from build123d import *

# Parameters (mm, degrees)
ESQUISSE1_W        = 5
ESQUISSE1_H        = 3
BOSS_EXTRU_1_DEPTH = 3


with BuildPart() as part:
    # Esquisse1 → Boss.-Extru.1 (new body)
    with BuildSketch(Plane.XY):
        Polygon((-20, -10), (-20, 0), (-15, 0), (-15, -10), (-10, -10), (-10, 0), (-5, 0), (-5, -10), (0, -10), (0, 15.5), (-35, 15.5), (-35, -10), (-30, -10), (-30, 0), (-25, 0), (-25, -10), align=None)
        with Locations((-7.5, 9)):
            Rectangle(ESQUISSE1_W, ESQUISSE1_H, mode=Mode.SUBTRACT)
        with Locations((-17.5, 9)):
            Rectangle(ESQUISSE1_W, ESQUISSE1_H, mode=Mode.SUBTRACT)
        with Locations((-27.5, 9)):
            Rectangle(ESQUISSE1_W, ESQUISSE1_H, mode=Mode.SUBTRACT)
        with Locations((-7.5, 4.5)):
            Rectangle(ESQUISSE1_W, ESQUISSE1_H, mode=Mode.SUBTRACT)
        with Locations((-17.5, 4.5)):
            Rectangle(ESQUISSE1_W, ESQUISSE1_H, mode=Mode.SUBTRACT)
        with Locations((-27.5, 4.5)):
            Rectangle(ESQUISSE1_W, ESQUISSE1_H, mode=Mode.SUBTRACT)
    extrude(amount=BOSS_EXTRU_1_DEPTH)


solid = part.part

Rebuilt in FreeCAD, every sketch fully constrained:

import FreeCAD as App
import Part
import Sketcher
from FreeCAD import Vector
Q = App.Units.Quantity

doc = App.newDocument("Part")
body = doc.addObject("PartDesign::Body", "Body")

# Sketch on XY plane
sketch1 = doc.addObject("Sketcher::SketchObject", "Sketch")
body.addObject(sketch1)
sketch1.AttachmentSupport = (doc.XY_Plane, [""])
sketch1.MapMode = "FlatFace"
sketch1.addGeometry(Part.LineSegment(Vector(-20, -10, 0), Vector(-20, 0, 0)), False)
sketch1.addGeometry(Part.LineSegment(Vector(-20, 0, 0), Vector(-15, 0, 0)), False)
sketch1.addGeometry(Part.LineSegment(Vector(-15, 0, 0), Vector(-15, -10, 0)), False)
sketch1.addGeometry(Part.LineSegment(Vector(-15, -10, 0), Vector(-10, -10, 0)), False)
sketch1.addGeometry(Part.LineSegment(Vector(-10, -10, 0), Vector(-10, 0, 0)), False)
sketch1.addGeometry(Part.LineSegment(Vector(-10, 0, 0), Vector(-5, 0, 0)), False)
sketch1.addGeometry(Part.LineSegment(Vector(-5, 0, 0), Vector(-5, -10, 0)), False)
sketch1.addGeometry(Part.LineSegment(Vector(-5, -10, 0), Vector(0, -10, 0)), False)
sketch1.addGeometry(Part.LineSegment(Vector(0, -10, 0), Vector(0, 15.5, 0)), False)
sketch1.addGeometry(Part.LineSegment(Vector(0, 15.5, 0), Vector(-35, 15.5, 0)), False)
sketch1.addGeometry(Part.LineSegment(Vector(-35, 15.5, 0), Vector(-35, -10, 0)), False)
sketch1.addGeometry(Part.LineSegment(Vector(-35, -10, 0), Vector(-30, -10, 0)), False)
sketch1.addGeometry(Part.LineSegment(Vector(-30, -10, 0), Vector(-30, 0, 0)), False)
sketch1.addGeometry(Part.LineSegment(Vector(-30, 0, 0), Vector(-25, 0, 0)), False)
sketch1.addGeometry(Part.LineSegment(Vector(-25, 0, 0), Vector(-25, -10, 0)), False)
sketch1.addGeometry(Part.LineSegment(Vector(-25, -10, 0), Vector(-20, -10, 0)), False)
sketch1.addGeometry(Part.LineSegment(Vector(-25, 3, 0), Vector(-30, 3, 0)), False)
sketch1.addGeometry(Part.LineSegment(Vector(-30, 3, 0), Vector(-30, 6, 0)), False)
sketch1.addGeometry(Part.LineSegment(Vector(-30, 6, 0), Vector(-25, 6, 0)), False)
sketch1.addGeometry(Part.LineSegment(Vector(-25, 6, 0), Vector(-25, 3, 0)), False)
sketch1.addGeometry(Part.LineSegment(Vector(-15, 3, 0), Vector(-20, 3, 0)), False)
sketch1.addGeometry(Part.LineSegment(Vector(-20, 3, 0), Vector(-20, 6, 0)), False)
sketch1.addGeometry(Part.LineSegment(Vector(-20, 6, 0), Vector(-15, 6, 0)), False)
sketch1.addGeometry(Part.LineSegment(Vector(-15, 6, 0), Vector(-15, 3, 0)), False)
sketch1.addGeometry(Part.LineSegment(Vector(-5, 3, 0), Vector(-10, 3, 0)), False)
sketch1.addGeometry(Part.LineSegment(Vector(-10, 3, 0), Vector(-10, 6, 0)), False)
sketch1.addGeometry(Part.LineSegment(Vector(-10, 6, 0), Vector(-5, 6, 0)), False)
sketch1.addGeometry(Part.LineSegment(Vector(-5, 6, 0), Vector(-5, 3, 0)), False)
sketch1.addGeometry(Part.LineSegment(Vector(-25, 7.5, 0), Vector(-30, 7.5, 0)), False)
sketch1.addGeometry(Part.LineSegment(Vector(-30, 7.5, 0), Vector(-30, 10.5, 0)), False)
sketch1.addGeometry(Part.LineSegment(Vector(-30, 10.5, 0), Vector(-25, 10.5, 0)), False)
sketch1.addGeometry(Part.LineSegment(Vector(-25, 10.5, 0), Vector(-25, 7.5, 0)), False)
sketch1.addGeometry(Part.LineSegment(Vector(-15, 7.5, 0), Vector(-20, 7.5, 0)), False)
sketch1.addGeometry(Part.LineSegment(Vector(-20, 7.5, 0), Vector(-20, 10.5, 0)), False)
sketch1.addGeometry(Part.LineSegment(Vector(-20, 10.5, 0), Vector(-15, 10.5, 0)), False)
sketch1.addGeometry(Part.LineSegment(Vector(-15, 10.5, 0), Vector(-15, 7.5, 0)), False)
sketch1.addGeometry(Part.LineSegment(Vector(-5, 7.5, 0), Vector(-10, 7.5, 0)), False)
sketch1.addGeometry(Part.LineSegment(Vector(-10, 7.5, 0), Vector(-10, 10.5, 0)), False)
sketch1.addGeometry(Part.LineSegment(Vector(-10, 10.5, 0), Vector(-5, 10.5, 0)), False)
sketch1.addGeometry(Part.LineSegment(Vector(-5, 10.5, 0), Vector(-5, 7.5, 0)), False)
sketch1.addConstraint(Sketcher.Constraint("Coincident", 0, 2, 1, 1))
sketch1.addConstraint(Sketcher.Constraint("Coincident", 1, 2, 2, 1))
sketch1.addConstraint(Sketcher.Constraint("Coincident", 2, 2, 3, 1))
sketch1.addConstraint(Sketcher.Constraint("Coincident", 3, 2, 4, 1))
sketch1.addConstraint(Sketcher.Constraint("Coincident", 4, 2, 5, 1))
sketch1.addConstraint(Sketcher.Constraint("Coincident", 5, 2, 6, 1))
sketch1.addConstraint(Sketcher.Constraint("Coincident", 6, 2, 7, 1))
sketch1.addConstraint(Sketcher.Constraint("Coincident", 7, 2, 8, 1))
sketch1.addConstraint(Sketcher.Constraint("Coincident", 8, 2, 9, 1))
sketch1.addConstraint(Sketcher.Constraint("Coincident", 9, 2, 10, 1))
sketch1.addConstraint(Sketcher.Constraint("Coincident", 10, 2, 11, 1))
sketch1.addConstraint(Sketcher.Constraint("Coincident", 11, 2, 12, 1))
sketch1.addConstraint(Sketcher.Constraint("Coincident", 12, 2, 13, 1))
sketch1.addConstraint(Sketcher.Constraint("Coincident", 13, 2, 14, 1))
sketch1.addConstraint(Sketcher.Constraint("Coincident", 14, 2, 15, 1))
sketch1.addConstraint(Sketcher.Constraint("Coincident", 15, 2, 0, 1))
sketch1.addConstraint(Sketcher.Constraint("Coincident", 16, 2, 17, 1))
sketch1.addConstraint(Sketcher.Constraint("Coincident", 17, 2, 18, 1))
sketch1.addConstraint(Sketcher.Constraint("Coincident", 18, 2, 19, 1))
sketch1.addConstraint(Sketcher.Constraint("Coincident", 19, 2, 16, 1))
sketch1.addConstraint(Sketcher.Constraint("Coincident", 20, 2, 21, 1))
sketch1.addConstraint(Sketcher.Constraint("Coincident", 21, 2, 22, 1))
sketch1.addConstraint(Sketcher.Constraint("Coincident", 22, 2, 23, 1))
sketch1.addConstraint(Sketcher.Constraint("Coincident", 23, 2, 20, 1))
sketch1.addConstraint(Sketcher.Constraint("Coincident", 24, 2, 25, 1))
sketch1.addConstraint(Sketcher.Constraint("Coincident", 25, 2, 26, 1))
sketch1.addConstraint(Sketcher.Constraint("Coincident", 26, 2, 27, 1))
sketch1.addConstraint(Sketcher.Constraint("Coincident", 27, 2, 24, 1))
sketch1.addConstraint(Sketcher.Constraint("Coincident", 28, 2, 29, 1))
sketch1.addConstraint(Sketcher.Constraint("Coincident", 29, 2, 30, 1))
sketch1.addConstraint(Sketcher.Constraint("Coincident", 30, 2, 31, 1))
sketch1.addConstraint(Sketcher.Constraint("Coincident", 31, 2, 28, 1))
sketch1.addConstraint(Sketcher.Constraint("Coincident", 32, 2, 33, 1))
sketch1.addConstraint(Sketcher.Constraint("Coincident", 33, 2, 34, 1))
sketch1.addConstraint(Sketcher.Constraint("Coincident", 34, 2, 35, 1))
sketch1.addConstraint(Sketcher.Constraint("Coincident", 35, 2, 32, 1))
sketch1.addConstraint(Sketcher.Constraint("Coincident", 36, 2, 37, 1))
sketch1.addConstraint(Sketcher.Constraint("Coincident", 37, 2, 38, 1))
sketch1.addConstraint(Sketcher.Constraint("Coincident", 38, 2, 39, 1))
sketch1.addConstraint(Sketcher.Constraint("Coincident", 39, 2, 36, 1))
sketch1.addConstraint(Sketcher.Constraint("Vertical", 0))
sketch1.addConstraint(Sketcher.Constraint("Horizontal", 1))
sketch1.addConstraint(Sketcher.Constraint("Vertical", 2))
sketch1.addConstraint(Sketcher.Constraint("Horizontal", 3))
sketch1.addConstraint(Sketcher.Constraint("Vertical", 4))
sketch1.addConstraint(Sketcher.Constraint("Horizontal", 5))
sketch1.addConstraint(Sketcher.Constraint("Vertical", 6))
sketch1.addConstraint(Sketcher.Constraint("Horizontal", 7))
sketch1.addConstraint(Sketcher.Constraint("Vertical", 8))
sketch1.addConstraint(Sketcher.Constraint("Horizontal", 9))
sketch1.addConstraint(Sketcher.Constraint("Vertical", 10))
sketch1.addConstraint(Sketcher.Constraint("Horizontal", 11))
sketch1.addConstraint(Sketcher.Constraint("Vertical", 12))
sketch1.addConstraint(Sketcher.Constraint("Horizontal", 13))
sketch1.addConstraint(Sketcher.Constraint("Vertical", 14))
sketch1.addConstraint(Sketcher.Constraint("Horizontal", 15))
sketch1.addConstraint(Sketcher.Constraint("Horizontal", 16))
sketch1.addConstraint(Sketcher.Constraint("Vertical", 17))
sketch1.addConstraint(Sketcher.Constraint("Horizontal", 18))
sketch1.addConstraint(Sketcher.Constraint("Vertical", 19))
sketch1.addConstraint(Sketcher.Constraint("Horizontal", 20))
sketch1.addConstraint(Sketcher.Constraint("Vertical", 21))
sketch1.addConstraint(Sketcher.Constraint("Horizontal", 22))
sketch1.addConstraint(Sketcher.Constraint("Vertical", 23))
sketch1.addConstraint(Sketcher.Constraint("Horizontal", 24))
sketch1.addConstraint(Sketcher.Constraint("Vertical", 25))
sketch1.addConstraint(Sketcher.Constraint("Horizontal", 26))
sketch1.addConstraint(Sketcher.Constraint("Vertical", 27))
sketch1.addConstraint(Sketcher.Constraint("Horizontal", 28))
sketch1.addConstraint(Sketcher.Constraint("Vertical", 29))
sketch1.addConstraint(Sketcher.Constraint("Horizontal", 30))
sketch1.addConstraint(Sketcher.Constraint("Vertical", 31))
sketch1.addConstraint(Sketcher.Constraint("Horizontal", 32))
sketch1.addConstraint(Sketcher.Constraint("Vertical", 33))
sketch1.addConstraint(Sketcher.Constraint("Horizontal", 34))
sketch1.addConstraint(Sketcher.Constraint("Vertical", 35))
sketch1.addConstraint(Sketcher.Constraint("Horizontal", 36))
sketch1.addConstraint(Sketcher.Constraint("Vertical", 37))
sketch1.addConstraint(Sketcher.Constraint("Horizontal", 38))
sketch1.addConstraint(Sketcher.Constraint("Vertical", 39))
sketch1.addConstraint(Sketcher.Constraint("PointOnObject", 0, 2, -1))
sketch1.addConstraint(Sketcher.Constraint("PointOnObject", 4, 2, -1))
sketch1.addConstraint(Sketcher.Constraint("PointOnObject", 7, 2, -2))
sketch1.addConstraint(Sketcher.Constraint("PointOnObject", 12, 2, -1))
sketch1.addConstraint(Sketcher.Constraint("Horizontal", 3, 2, 6, 2))
sketch1.addConstraint(Sketcher.Constraint("Horizontal", 7, 2, 10, 2))
sketch1.addConstraint(Sketcher.Constraint("Horizontal", 11, 2, 14, 2))
sketch1.addConstraint(Sketcher.Constraint("Horizontal", 19, 2, 20, 2))
sketch1.addConstraint(Sketcher.Constraint("Horizontal", 18, 2, 21, 2))
sketch1.addConstraint(Sketcher.Constraint("Horizontal", 23, 2, 24, 2))
sketch1.addConstraint(Sketcher.Constraint("Horizontal", 22, 2, 25, 2))
sketch1.addConstraint(Sketcher.Constraint("Horizontal", 31, 2, 32, 2))
sketch1.addConstraint(Sketcher.Constraint("Horizontal", 30, 2, 33, 2))
sketch1.addConstraint(Sketcher.Constraint("Horizontal", 35, 2, 36, 2))
sketch1.addConstraint(Sketcher.Constraint("Horizontal", 34, 2, 37, 2))
sketch1.addConstraint(Sketcher.Constraint("Vertical", 12, 2, 16, 2))
sketch1.addConstraint(Sketcher.Constraint("Vertical", 14, 2, 18, 2))
sketch1.addConstraint(Sketcher.Constraint("Vertical", 15, 2, 20, 2))
sketch1.addConstraint(Sketcher.Constraint("Vertical", 2, 2, 22, 2))
sketch1.addConstraint(Sketcher.Constraint("Vertical", 4, 2, 24, 2))
sketch1.addConstraint(Sketcher.Constraint("Vertical", 6, 2, 26, 2))
sketch1.addConstraint(Sketcher.Constraint("Vertical", 17, 2, 28, 2))
sketch1.addConstraint(Sketcher.Constraint("Vertical", 19, 2, 30, 2))
sketch1.addConstraint(Sketcher.Constraint("Vertical", 21, 2, 32, 2))
sketch1.addConstraint(Sketcher.Constraint("Vertical", 23, 2, 34, 2))
sketch1.addConstraint(Sketcher.Constraint("Vertical", 25, 2, 36, 2))
sketch1.addConstraint(Sketcher.Constraint("Vertical", 27, 2, 38, 2))
sketch1.addConstraint(Sketcher.Constraint("Equal", 1, 3))
sketch1.addConstraint(Sketcher.Constraint("Equal", 3, 5))
sketch1.addConstraint(Sketcher.Constraint("Equal", 5, 7))
sketch1.addConstraint(Sketcher.Constraint("Equal", 7, 11))
sketch1.addConstraint(Sketcher.Constraint("Equal", 11, 13))
sketch1.addConstraint(Sketcher.Constraint("Equal", 13, 15))
sketch1.addConstraint(Sketcher.Constraint("Equal", 27, 29))
sketch1.addConstraint(Sketcher.Constraint("DistanceX", 1, 1, 1, 2, Q("5 mm")))
sketch1.addConstraint(Sketcher.Constraint("DistanceY", 0, 1, 0, 2, Q("10 mm")))
sketch1.addConstraint(Sketcher.Constraint("DistanceY", 17, 1, 17, 2, Q("3 mm")))
sketch1.addConstraint(Sketcher.Constraint("DistanceY", 8, 1, 8, 2, Q("25.5 mm")))
sketch1.addConstraint(Sketcher.Constraint("DistanceY", -1, 1, 16, 2, Q("3 mm")))
sketch1.addConstraint(Sketcher.Constraint("DistanceY", 29, 2, 9, 2, Q("5 mm")))
pad1 = doc.addObject("PartDesign::Pad", "Pad")
body.addObject(pad1)
pad1.Profile = sketch1
pad1.Length = 3

doc.recompute()
